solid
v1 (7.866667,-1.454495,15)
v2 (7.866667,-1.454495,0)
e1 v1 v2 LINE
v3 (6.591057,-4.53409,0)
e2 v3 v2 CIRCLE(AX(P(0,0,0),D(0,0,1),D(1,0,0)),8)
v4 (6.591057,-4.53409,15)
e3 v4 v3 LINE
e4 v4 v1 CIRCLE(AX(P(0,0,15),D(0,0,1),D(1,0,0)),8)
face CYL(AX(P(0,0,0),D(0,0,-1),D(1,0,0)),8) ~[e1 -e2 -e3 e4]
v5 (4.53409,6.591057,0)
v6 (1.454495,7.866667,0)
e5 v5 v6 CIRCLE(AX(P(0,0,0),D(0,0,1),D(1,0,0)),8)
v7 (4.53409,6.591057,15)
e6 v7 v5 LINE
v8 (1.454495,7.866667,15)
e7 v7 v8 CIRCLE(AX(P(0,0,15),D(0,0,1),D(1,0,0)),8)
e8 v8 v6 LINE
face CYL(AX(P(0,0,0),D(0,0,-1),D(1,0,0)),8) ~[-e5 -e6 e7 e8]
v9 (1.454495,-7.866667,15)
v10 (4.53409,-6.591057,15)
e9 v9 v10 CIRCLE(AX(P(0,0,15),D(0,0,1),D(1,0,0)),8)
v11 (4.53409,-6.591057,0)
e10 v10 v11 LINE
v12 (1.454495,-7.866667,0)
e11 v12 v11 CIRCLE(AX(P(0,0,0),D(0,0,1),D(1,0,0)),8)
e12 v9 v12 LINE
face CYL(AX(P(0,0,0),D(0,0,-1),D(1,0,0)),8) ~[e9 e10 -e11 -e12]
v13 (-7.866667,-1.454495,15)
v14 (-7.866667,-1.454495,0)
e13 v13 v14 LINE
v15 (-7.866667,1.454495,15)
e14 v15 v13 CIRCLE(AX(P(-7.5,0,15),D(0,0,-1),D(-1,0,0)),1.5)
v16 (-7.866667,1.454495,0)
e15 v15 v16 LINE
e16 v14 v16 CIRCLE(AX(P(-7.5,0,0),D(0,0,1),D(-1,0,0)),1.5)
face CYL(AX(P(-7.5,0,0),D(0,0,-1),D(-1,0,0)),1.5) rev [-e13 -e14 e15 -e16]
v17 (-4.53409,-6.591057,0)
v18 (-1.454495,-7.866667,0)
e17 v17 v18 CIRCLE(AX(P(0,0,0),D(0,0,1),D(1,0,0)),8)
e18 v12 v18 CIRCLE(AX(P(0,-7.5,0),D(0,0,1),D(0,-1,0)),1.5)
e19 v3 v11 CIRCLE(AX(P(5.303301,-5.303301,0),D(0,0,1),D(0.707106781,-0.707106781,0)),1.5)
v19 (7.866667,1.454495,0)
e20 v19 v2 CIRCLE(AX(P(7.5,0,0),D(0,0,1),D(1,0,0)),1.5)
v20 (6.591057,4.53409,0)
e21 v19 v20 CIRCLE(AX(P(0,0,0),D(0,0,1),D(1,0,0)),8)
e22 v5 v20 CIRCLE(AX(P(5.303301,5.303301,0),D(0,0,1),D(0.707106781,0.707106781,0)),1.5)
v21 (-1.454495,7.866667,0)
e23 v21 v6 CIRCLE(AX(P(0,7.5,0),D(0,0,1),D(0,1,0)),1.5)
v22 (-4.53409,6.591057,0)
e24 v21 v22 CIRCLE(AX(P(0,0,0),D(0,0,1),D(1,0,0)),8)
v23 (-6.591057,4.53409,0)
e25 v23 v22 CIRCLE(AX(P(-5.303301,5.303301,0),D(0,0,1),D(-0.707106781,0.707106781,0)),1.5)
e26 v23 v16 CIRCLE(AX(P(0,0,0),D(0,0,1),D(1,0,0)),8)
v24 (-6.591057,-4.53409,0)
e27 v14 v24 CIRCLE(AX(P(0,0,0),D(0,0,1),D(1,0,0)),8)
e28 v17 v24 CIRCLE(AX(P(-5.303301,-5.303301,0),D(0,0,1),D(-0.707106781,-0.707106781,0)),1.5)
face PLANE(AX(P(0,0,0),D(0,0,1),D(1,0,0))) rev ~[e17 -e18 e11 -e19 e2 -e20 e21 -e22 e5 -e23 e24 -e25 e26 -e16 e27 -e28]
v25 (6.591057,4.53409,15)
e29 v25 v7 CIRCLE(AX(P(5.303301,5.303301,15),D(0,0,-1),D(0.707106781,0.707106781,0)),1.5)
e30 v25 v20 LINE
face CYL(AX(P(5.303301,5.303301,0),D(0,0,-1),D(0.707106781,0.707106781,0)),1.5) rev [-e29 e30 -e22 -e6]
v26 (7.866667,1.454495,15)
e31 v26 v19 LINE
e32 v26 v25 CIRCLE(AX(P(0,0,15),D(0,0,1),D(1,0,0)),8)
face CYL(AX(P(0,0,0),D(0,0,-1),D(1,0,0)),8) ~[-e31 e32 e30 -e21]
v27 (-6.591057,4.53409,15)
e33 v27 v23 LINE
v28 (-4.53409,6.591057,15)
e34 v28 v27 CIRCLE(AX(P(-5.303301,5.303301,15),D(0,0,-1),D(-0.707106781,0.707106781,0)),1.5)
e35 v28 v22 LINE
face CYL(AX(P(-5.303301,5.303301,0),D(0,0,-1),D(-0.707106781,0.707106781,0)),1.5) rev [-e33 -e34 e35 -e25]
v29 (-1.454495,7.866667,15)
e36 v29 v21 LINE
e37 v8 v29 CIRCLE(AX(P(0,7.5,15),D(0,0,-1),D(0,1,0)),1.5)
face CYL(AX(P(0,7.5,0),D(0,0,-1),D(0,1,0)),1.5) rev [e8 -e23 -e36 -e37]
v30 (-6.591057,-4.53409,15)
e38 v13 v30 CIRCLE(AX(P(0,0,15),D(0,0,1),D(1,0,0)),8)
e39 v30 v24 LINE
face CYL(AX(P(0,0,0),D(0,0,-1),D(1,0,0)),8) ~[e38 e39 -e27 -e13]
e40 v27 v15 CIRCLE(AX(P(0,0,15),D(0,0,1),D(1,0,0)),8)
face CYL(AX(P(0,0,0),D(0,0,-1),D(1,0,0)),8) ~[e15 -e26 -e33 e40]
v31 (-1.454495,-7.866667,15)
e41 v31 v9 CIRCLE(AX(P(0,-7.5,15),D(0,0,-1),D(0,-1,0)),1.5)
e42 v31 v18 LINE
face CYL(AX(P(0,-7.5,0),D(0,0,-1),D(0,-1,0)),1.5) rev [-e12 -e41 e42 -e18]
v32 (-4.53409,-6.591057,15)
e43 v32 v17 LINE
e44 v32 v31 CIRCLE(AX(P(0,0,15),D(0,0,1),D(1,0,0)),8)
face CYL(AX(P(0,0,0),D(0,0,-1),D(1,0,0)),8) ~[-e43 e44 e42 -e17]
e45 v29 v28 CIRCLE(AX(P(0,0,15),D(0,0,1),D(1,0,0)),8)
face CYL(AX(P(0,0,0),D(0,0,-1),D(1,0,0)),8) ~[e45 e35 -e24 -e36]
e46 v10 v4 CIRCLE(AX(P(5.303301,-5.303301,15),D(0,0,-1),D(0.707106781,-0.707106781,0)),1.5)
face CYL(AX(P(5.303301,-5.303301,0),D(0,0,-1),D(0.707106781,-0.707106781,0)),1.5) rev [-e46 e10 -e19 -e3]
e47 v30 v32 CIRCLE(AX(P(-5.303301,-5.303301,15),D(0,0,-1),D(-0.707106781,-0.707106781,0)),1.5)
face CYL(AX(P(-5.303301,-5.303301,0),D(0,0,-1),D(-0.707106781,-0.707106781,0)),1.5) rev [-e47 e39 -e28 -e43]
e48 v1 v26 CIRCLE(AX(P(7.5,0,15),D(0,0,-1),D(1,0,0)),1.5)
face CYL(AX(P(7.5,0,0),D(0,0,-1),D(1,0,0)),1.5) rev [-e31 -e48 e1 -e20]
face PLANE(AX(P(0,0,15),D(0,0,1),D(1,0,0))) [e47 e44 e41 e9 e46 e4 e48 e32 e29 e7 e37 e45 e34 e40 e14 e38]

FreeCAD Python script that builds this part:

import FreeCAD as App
import Part
import Sketcher
Q = App.Units.Quantity

doc = App.newDocument("Part")
body = doc.addObject("PartDesign::Body", "Body")

sketch1 = doc.addObject("Sketcher::SketchObject", "Sketch")
body.addObject(sketch1)
sketch1.AttachmentSupport = (doc.XY_Plane, [""])
sketch1.MapMode = "FlatFace"
sketch1.addGeometry(Part.Circle(App.Vector(7.5, 0, 0), App.Vector(0, 0, 1), 1.5), False)
sketch1.addConstraint(Sketcher.Constraint("PointOnObject", 0, 3, -1))
sketch1.addConstraint(Sketcher.Constraint("Diameter", 0, Q("3 mm")))
sketch1.addConstraint(Sketcher.Constraint("DistanceX", -1, 1, 0, 3, Q("7.5 mm")))
pad1 = doc.addObject("PartDesign::Pad", "Pad")
body.addObject(pad1)
pad1.Profile = sketch1
pad1.Length = 30
body2 = doc.addObject("PartDesign::Body", "Body001")
body2.AllowCompound = True
doc.recompute()

body2.BaseFeature = body
doc.recompute()

body3 = doc.addObject("PartDesign::Body", "Body002")
body3.BaseFeature = body
body3.Placement = App.Placement(App.Vector(0, 0, 0), App.Rotation(App.Vector(0, 0, 1), 45))
boolean = doc.addObject("PartDesign::Boolean", "Boolean")
body2.addObject(boolean)
boolean.Type = "Fuse"
boolean.addObjects([body3])
doc.recompute()

body4 = doc.addObject("PartDesign::Body", "Body003")
body4.BaseFeature = body
body4.Placement = App.Placement(App.Vector(0, 0, 0), App.Rotation(App.Vector(0, 0, 1), 90))
boolean2 = doc.addObject("PartDesign::Boolean", "Boolean001")
body2.addObject(boolean2)
boolean2.Type = "Fuse"
boolean2.addObjects([body4])
doc.recompute()

body5 = doc.addObject("PartDesign::Body", "Body004")
body5.BaseFeature = body
body5.Placement = App.Placement(App.Vector(0, 0, 0), App.Rotation(App.Vector(0, 0, 1), 135))
boolean3 = doc.addObject("PartDesign::Boolean", "Boolean002")
body2.addObject(boolean3)
boolean3.Type = "Fuse"
boolean3.addObjects([body5])
doc.recompute()

body6 = doc.addObject("PartDesign::Body", "Body005")
body6.BaseFeature = body
body6.Placement = App.Placement(App.Vector(0, 0, 0), App.Rotation(App.Vector(0, 0, 1), 180))
boolean4 = doc.addObject("PartDesign::Boolean", "Boolean003")
body2.addObject(boolean4)
boolean4.Type = "Fuse"
boolean4.addObjects([body6])
doc.recompute()

body7 = doc.addObject("PartDesign::Body", "Body006")
body7.BaseFeature = body
body7.Placement = App.Placement(App.Vector(0, 0, 0), App.Rotation(App.Vector(0, 0, 1), 225))
boolean5 = doc.addObject("PartDesign::Boolean", "Boolean004")
body2.addObject(boolean5)
boolean5.Type = "Fuse"
boolean5.addObjects([body7])
doc.recompute()

body8 = doc.addObject("PartDesign::Body", "Body007")
body8.BaseFeature = body
body8.Placement = App.Placement(App.Vector(0, 0, 0), App.Rotation(App.Vector(0, 0, 1), 270))
boolean6 = doc.addObject("PartDesign::Boolean", "Boolean005")
body2.addObject(boolean6)
boolean6.Type = "Fuse"
boolean6.addObjects([body8])
doc.recompute()

body.Placement = App.Placement(App.Vector(0, 0, 0), App.Rotation(App.Vector(0, 0, 1), 315))
boolean7 = doc.addObject("PartDesign::Boolean", "Boolean006")
body2.addObject(boolean7)
boolean7.Type = "Fuse"
boolean7.addObjects([body])
body9 = doc.addObject("PartDesign::Body", "Body008")

sketch2 = doc.addObject("Sketcher::SketchObject", "Sketch001")
body9.addObject(sketch2)
sketch2.AttachmentSupport = (doc.getObject("XY_Plane008"), [""])
sketch2.MapMode = "FlatFace"
sketch2.addGeometry(Part.Circle(App.Vector(0, 0, 0), App.Vector(0, 0, 1), 8), False)
sketch2.addConstraint(Sketcher.Constraint("Coincident", 0, 3, -1, 1))
sketch2.addConstraint(Sketcher.Constraint("Diameter", 0, Q("16 mm")))
pad2 = doc.addObject("PartDesign::Pad", "Pad001")
body9.addObject(pad2)
pad2.Profile = sketch2
pad2.Length = 15
doc.recompute()

boolean8 = doc.addObject("PartDesign::Boolean", "Boolean007")
body9.addObject(boolean8)
boolean8.Type = "Cut"
boolean8.addObjects([body2])

doc.recompute()
